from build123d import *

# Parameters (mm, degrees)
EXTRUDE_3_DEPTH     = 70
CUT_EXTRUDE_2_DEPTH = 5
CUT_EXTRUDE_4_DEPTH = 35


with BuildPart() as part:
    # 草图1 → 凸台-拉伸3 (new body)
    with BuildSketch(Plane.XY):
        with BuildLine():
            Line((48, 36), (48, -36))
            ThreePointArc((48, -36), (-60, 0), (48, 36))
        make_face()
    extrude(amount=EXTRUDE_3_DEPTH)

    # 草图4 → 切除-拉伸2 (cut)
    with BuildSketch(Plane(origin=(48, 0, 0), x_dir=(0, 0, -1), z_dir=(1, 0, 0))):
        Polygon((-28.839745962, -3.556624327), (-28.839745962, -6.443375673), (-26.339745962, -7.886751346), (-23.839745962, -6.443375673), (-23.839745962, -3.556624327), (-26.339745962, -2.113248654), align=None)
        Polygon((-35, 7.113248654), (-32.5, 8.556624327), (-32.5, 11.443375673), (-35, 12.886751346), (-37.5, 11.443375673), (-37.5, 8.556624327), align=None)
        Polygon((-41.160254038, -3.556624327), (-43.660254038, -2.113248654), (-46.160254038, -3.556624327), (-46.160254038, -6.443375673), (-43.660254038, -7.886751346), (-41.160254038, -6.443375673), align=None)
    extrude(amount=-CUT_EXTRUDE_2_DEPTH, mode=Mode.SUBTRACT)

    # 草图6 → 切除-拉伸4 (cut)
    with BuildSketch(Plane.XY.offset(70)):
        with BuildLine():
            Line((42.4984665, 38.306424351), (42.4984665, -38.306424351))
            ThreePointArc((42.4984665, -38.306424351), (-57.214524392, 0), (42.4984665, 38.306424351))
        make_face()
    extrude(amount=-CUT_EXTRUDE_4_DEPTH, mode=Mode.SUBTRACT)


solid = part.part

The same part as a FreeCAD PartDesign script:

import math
import FreeCAD as App
import Part
import Sketcher

V = App.Vector
Q = App.Units.Quantity


def add_polygon(sketch, points):
    """Adds a closed chain of lines whose ends are joined by coincident constraints."""
    first, n = sketch.GeometryCount, len(points)
    for a, b in zip(points, points[1:] + points[:1]):
        sketch.addGeometry(Part.LineSegment(App.Vector(*a, 0), App.Vector(*b, 0)), False)
    for i in range(n):
        sketch.addConstraint(Sketcher.Constraint("Coincident", first + i, 2, first + (i + 1) % n, 1))

doc = App.newDocument("Part")
body = doc.addObject("PartDesign::Body", "Body")

sketch1 = body.newObject("Sketcher::SketchObject", "Sketch")
sketch1.AttachmentSupport = (doc.getObject("XY_Plane"), [""])
sketch1.MapMode = "FlatFace"
sketch1.addGeometry([
    Part.LineSegment(V(48, -36, 0), V(48, 36, 0)),
    Part.ArcOfCircle(Part.Circle(V(0, 0, 0), V(0, 0, 1), 60), math.radians(37), math.radians(323)),
], False)
sketch1.addConstraint([
    Sketcher.Constraint("Coincident", 0, 1, 1, 2),
    Sketcher.Constraint("Coincident", 1, 1, 0, 2),
    Sketcher.Constraint("Vertical", 0),
    Sketcher.Constraint("Coincident", 1, 3, -1, 1),
    Sketcher.Constraint("Radius", 1, Q("60 mm")),
    Sketcher.Constraint("DistanceY", 0, 1, 0, 2, Q("72 mm")),
])
pad1 = body.newObject("PartDesign::Pad", "Pad")
pad1.Profile = sketch1
pad1.Length = 70

sketch2 = body.newObject("Sketcher::SketchObject", "Sketch001")
sketch2.AttachmentSupport = (doc.getObject("YZ_Plane"), [""])
sketch2.MapMode = "FlatFace"
sketch2.AttachmentOffset = App.Placement(V(0, 0, 48), App.Rotation())
add_polygon(sketch2, [(-3.6, 28.8), (-6.4, 28.8), (-7.9, 26.3), (-6.4, 23.8), (-3.6, 23.8), (-2.1, 26.3)])
add_polygon(sketch2, [(7.1, 35), (8.6, 32.5), (11.4, 32.5), (12.9, 35), (11.4, 37.5), (8.6, 37.5)])
add_polygon(sketch2, [(-3.6, 41.2), (-2.1, 43.7), (-3.6, 46.2), (-6.4, 46.2), (-7.9, 43.7), (-6.4, 41.2)])
sketch2.addConstraint([
    Sketcher.Constraint("Horizontal", 0),
    Sketcher.Constraint("Horizontal", 3),
    Sketcher.Constraint("Horizontal", 7),
    Sketcher.Constraint("Horizontal", 10),
    Sketcher.Constraint("Horizontal", 14),
    Sketcher.Constraint("Horizontal", 17),
    Sketcher.Constraint("Parallel", 1, 4),
    Sketcher.Constraint("Parallel", 2, 5),
    Sketcher.Constraint("Parallel", 5, 6),
    Sketcher.Constraint("Parallel", 4, 8),
    Sketcher.Constraint("Parallel", 6, 9),
    Sketcher.Constraint("Parallel", 8, 11),
    Sketcher.Constraint("Parallel", 11, 12),
    Sketcher.Constraint("Parallel", 9, 13),
    Sketcher.Constraint("Parallel", 12, 15),
    Sketcher.Constraint("Parallel", 13, 16),
    Sketcher.Constraint("Horizontal", 1, 2, 4, 2),
    Sketcher.Constraint("Horizontal", 8, 2, 11, 2),
    Sketcher.Constraint("Horizontal", 12, 2, 15, 2),
    Sketcher.Constraint("Vertical", 0, 2, 2, 2),
    Sketcher.Constraint("Vertical", 3, 2, 5, 2),
    Sketcher.Constraint("Vertical", 7, 2, 9, 2),
    Sketcher.Constraint("Vertical", 4, 2, 12, 2),
    Sketcher.Constraint("Vertical", 5, 2, 13, 2),
    Sketcher.Constraint("Vertical", 2, 2, 14, 2),
    Sketcher.Constraint("Vertical", 14, 2, 16, 2),
    Sketcher.Constraint("Equal", 3, 7),
    Sketcher.Constraint("Equal", 5, 6),
    Sketcher.Constraint("Angle", 1, Q("-120 deg")),
    Sketcher.Constraint("DistanceY", -1, 1, 8, 2, Q("35 mm")),
    Sketcher.Constraint("DistanceY", 2, 2, 0, 2, Q("5 mm")),
    Sketcher.Constraint("DistanceX", 0, 2, 6, 2, Q("15 mm")),
    Sketcher.Constraint("DistanceX", 0, 2, 0, 1, Q("2.886751 mm")),
    Sketcher.Constraint("DistanceX", 1, 2, -1, 1, Q("7.886751 mm")),
    Sketcher.Constraint("DistanceY", 5, 2, 12, 2, Q("14.820508 mm")),
    Sketcher.Constraint("DistanceY", -1, 1, 0, 2, Q("28.839746 mm")),
])
pocket1 = body.newObject("PartDesign::Pocket", "Pocket")
pocket1.Profile = sketch2
pocket1.Length = 5

sketch3 = body.newObject("Sketcher::SketchObject", "Sketch002")
sketch3.AttachmentSupport = (doc.getObject("XY_Plane"), [""])
sketch3.MapMode = "FlatFace"
sketch3.AttachmentOffset = App.Placement(V(0, 0, 70), App.Rotation())
sketch3.addGeometry([
    Part.LineSegment(V(42, -38, 0), V(42, 38, 0)),
    Part.ArcOfCircle(Part.Circle(V(0, 0, 0), V(0, 0, 1), 57), math.radians(42), math.radians(318)),
], False)
sketch3.addConstraint([
    Sketcher.Constraint("Coincident", 0, 1, 1, 2),
    Sketcher.Constraint("Coincident", 1, 1, 0, 2),
    Sketcher.Constraint("Vertical", 0),
    Sketcher.Constraint("Coincident", 1, 3, -1, 1),
    Sketcher.Constraint("Radius", 1, Q("57.214524 mm")),
    Sketcher.Constraint("DistanceY", 0, 1, 0, 2, Q("76.612849 mm")),
])
pocket2 = body.newObject("PartDesign::Pocket", "Pocket001")
pocket2.Profile = sketch3
pocket2.Length = 35

doc.recompute()
